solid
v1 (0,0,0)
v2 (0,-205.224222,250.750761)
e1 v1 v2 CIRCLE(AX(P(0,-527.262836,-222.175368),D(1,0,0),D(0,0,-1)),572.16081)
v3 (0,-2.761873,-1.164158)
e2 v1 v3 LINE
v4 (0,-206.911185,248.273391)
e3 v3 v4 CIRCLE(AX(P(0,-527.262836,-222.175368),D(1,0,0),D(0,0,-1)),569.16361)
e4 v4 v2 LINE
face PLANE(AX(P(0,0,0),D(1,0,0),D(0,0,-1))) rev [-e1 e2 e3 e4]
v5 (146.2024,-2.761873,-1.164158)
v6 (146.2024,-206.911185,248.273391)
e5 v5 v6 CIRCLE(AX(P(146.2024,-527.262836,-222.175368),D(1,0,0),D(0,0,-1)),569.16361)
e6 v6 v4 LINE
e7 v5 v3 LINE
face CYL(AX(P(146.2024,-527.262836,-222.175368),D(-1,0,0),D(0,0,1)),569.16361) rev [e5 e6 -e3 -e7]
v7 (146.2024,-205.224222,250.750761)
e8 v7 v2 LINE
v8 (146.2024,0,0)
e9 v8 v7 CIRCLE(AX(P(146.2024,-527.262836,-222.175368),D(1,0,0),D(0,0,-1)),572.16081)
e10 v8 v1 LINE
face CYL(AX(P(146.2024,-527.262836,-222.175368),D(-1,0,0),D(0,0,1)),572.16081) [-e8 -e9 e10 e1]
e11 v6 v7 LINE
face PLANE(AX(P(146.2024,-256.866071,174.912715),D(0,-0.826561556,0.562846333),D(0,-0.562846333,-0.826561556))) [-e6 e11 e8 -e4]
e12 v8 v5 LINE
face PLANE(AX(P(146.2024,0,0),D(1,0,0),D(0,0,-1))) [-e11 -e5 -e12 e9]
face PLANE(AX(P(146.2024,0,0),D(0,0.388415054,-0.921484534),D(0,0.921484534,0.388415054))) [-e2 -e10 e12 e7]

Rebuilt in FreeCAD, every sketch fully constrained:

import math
import FreeCAD as App
import Part
import Sketcher
from FreeCAD import Vector
Q = App.Units.Quantity

doc = App.newDocument("Part")
params = doc.addObject("Spreadsheet::Sheet", "Params")
for row, (alias, value) in enumerate([
    ("sketch1_length", "0.059 in"),
    ("pad1_length", "5.756 in"),
], start=1):
    params.set(f"A{row}", alias)
    params.set(f"B{row}", "=" + value)
    params.setAlias(f"B{row}", alias)

body = doc.addObject("PartDesign::Body", "Body")

sketch1 = body.newObject("Sketcher::SketchObject", "Sketch")
sketch1.AttachmentSupport = (doc.getObject("YZ_Plane"), [""])
sketch1.MapMode = "FlatFace"
sketch1.addGeometry([
    Part.LineSegment(Vector(-206.067704, 249.512076, 0), Vector(-206.911185, 248.273391, 0)),
    Part.ArcOfCircle(Part.Circle(Vector(-527.262836, -222.175368, 0), Vector(0, 0, 1), 569.16361), math.radians(22.849306), math.radians(55.74713)),
    Part.LineSegment(Vector(-2.761873, -1.164158, 0), Vector(-1.380937, -0.582079, 0)),
    Part.LineSegment(Vector(-1.380937, -0.582079, 0), Vector(0, 0, 0)),
    Part.ArcOfCircle(Part.Circle(Vector(-527.262836, -222.175368, 0), Vector(0, 0, 1), 572.16081), math.radians(22.84934), math.radians(55.74713)),
    Part.LineSegment(Vector(-205.224222, 250.750761, 0), Vector(-206.067704, 249.512076, 0)),
], False)
sketch1.addConstraint([
    Sketcher.Constraint("Coincident", 0, 2, 1, 2),
    Sketcher.Constraint("Coincident", 1, 1, 2, 1),
    Sketcher.Constraint("Coincident", 2, 2, 3, 1),
    Sketcher.Constraint("Coincident", 3, 2, 4, 1),
    Sketcher.Constraint("Coincident", 4, 2, 5, 1),
    Sketcher.Constraint("Coincident", 5, 2, 0, 1),
    Sketcher.Constraint("Coincident", 3, 2, -1, 1),
    Sketcher.Constraint("Coincident", 4, 3, 1, 3),
    Sketcher.Constraint("Parallel", 2, 3),
    Sketcher.Constraint("Parallel", 0, 5),
    Sketcher.Constraint("Equal", 0, 2),
    Sketcher.Constraint("Equal", 2, 3),
    Sketcher.Constraint("Distance", 0, Q("0.059 in")),
    Sketcher.Constraint("Radius", 1, Q("569.16361 mm")),
    Sketcher.Constraint("DistanceX", 4, 3, 2, 2, Q("525.881899 mm")),
    Sketcher.Constraint("DistanceY", -1, 1, 0, 2, Q("248.273391 mm")),
    Sketcher.Constraint("DistanceY", 2, 2, -1, 1, Q("0.582079 mm")),
    Sketcher.Constraint("DistanceX", 0, 2, 5, 2, Q("0.843482 mm")),
])
sketch1.setExpression("Constraints[12]", "Params.sketch1_length")
pad1 = body.newObject("PartDesign::Pad", "Pad")
pad1.Profile = sketch1
pad1.setExpression("Length", "Params.pad1_length")

doc.recompute()
